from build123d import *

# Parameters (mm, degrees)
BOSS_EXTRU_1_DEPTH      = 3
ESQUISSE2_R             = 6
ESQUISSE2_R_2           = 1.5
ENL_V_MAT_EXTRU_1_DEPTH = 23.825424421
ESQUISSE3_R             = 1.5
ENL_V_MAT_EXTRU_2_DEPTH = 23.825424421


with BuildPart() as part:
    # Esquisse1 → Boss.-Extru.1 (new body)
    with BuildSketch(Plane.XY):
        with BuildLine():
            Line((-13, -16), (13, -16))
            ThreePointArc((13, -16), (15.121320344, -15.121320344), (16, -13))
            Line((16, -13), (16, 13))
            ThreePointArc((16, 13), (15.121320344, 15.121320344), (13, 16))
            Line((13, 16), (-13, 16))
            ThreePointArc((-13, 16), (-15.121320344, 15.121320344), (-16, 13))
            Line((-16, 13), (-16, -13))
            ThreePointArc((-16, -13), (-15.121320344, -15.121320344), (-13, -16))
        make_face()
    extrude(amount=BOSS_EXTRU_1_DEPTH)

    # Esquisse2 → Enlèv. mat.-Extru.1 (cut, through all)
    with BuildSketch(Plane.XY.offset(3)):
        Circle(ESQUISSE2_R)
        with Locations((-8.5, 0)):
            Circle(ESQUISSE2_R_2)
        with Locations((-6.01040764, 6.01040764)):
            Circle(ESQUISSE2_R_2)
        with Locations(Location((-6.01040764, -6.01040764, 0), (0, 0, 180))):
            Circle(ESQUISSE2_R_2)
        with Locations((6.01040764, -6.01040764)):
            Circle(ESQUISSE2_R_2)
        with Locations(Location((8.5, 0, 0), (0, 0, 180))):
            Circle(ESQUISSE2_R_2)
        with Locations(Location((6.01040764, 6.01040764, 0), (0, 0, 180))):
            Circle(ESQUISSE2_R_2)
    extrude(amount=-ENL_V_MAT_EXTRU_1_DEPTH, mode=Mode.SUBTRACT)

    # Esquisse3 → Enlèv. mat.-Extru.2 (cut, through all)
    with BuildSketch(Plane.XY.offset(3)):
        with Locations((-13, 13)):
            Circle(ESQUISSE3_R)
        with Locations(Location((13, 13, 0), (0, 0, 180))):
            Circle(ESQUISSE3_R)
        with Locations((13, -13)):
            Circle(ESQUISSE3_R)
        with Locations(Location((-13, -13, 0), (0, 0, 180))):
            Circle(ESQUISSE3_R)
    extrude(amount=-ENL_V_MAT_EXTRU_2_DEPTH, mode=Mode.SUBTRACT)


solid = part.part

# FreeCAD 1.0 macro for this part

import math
import FreeCAD as App
import Part
import Sketcher

doc = App.newDocument("Part")
body = doc.addObject("PartDesign::Body", "Body")

# Sketch on XY plane
sketch1 = doc.addObject("Sketcher::SketchObject", "Sketch")
body.addObject(sketch1)
sketch1.AttachmentSupport = (doc.XY_Plane, [""])
sketch1.MapMode = "FlatFace"
sketch1.addGeometry([
    Part.LineSegment(App.Vector(-13, -16, 0), App.Vector(13, -16, 0)),  # 0
    Part.ArcOfCircle(Part.Circle(App.Vector(13, -13, 0), App.Vector(0, 0, 1), 3), math.radians(-90), math.radians(0)),  # 1
    Part.LineSegment(App.Vector(16, -13, 0), App.Vector(16, 13, 0)),  # 2
    Part.ArcOfCircle(Part.Circle(App.Vector(13, 13, 0), App.Vector(0, 0, 1), 3), math.radians(0), math.radians(90)),  # 3
    Part.LineSegment(App.Vector(13, 16, 0), App.Vector(-13, 16, 0)),  # 4
    Part.ArcOfCircle(Part.Circle(App.Vector(-13, 13, 0), App.Vector(0, 0, 1), 3), math.radians(90), math.radians(180)),  # 5
    Part.LineSegment(App.Vector(-16, 13, 0), App.Vector(-16, -13, 0)),  # 6
    Part.ArcOfCircle(Part.Circle(App.Vector(-13, -13, 0), App.Vector(0, 0, 1), 3), math.radians(180), math.radians(270)),  # 7
], False)
sketch1.addConstraint([
    Sketcher.Constraint("Tangent", 0, 2, 1, 1),
    Sketcher.Constraint("Tangent", 1, 2, 2, 1),
    Sketcher.Constraint("Tangent", 2, 2, 3, 1),
    Sketcher.Constraint("Tangent", 3, 2, 4, 1),
    Sketcher.Constraint("Tangent", 4, 2, 5, 1),
    Sketcher.Constraint("Tangent", 5, 2, 6, 1),
    Sketcher.Constraint("Tangent", 6, 2, 7, 1),
    Sketcher.Constraint("Tangent", 7, 2, 0, 1),
    Sketcher.Constraint("Horizontal", 0),
    Sketcher.Constraint("Vertical", 2),
    Sketcher.Constraint("Horizontal", 4),
    Sketcher.Constraint("Vertical", 6),
    Sketcher.Constraint("Equal", 1, 3),
    Sketcher.Constraint("Equal", 3, 5),
    Sketcher.Constraint("Equal", 5, 7),
    Sketcher.Constraint("Symmetric", 1, 3, 5, 3, -1, 1),
    Sketcher.Constraint("Equal", 4, 2),
    Sketcher.Constraint("Radius", 1, 3.0),
    Sketcher.Constraint("DistanceX", 0, 1, 0, 2, 26.0),
])
pad1 = doc.addObject("PartDesign::Pad", "Pad")
body.addObject(pad1)
pad1.Profile = sketch1
pad1.Length = 3

# Sketch on XY plane
sketch2 = doc.addObject("Sketcher::SketchObject", "Sketch001")
body.addObject(sketch2)
sketch2.AttachmentSupport = (doc.XY_Plane, [""])
sketch2.MapMode = "FlatFace"
sketch2.AttachmentOffset = App.Placement(App.Vector(0, 0, 3), App.Rotation())
sketch2.addGeometry([
    Part.Circle(App.Vector(0, 0, 0), App.Vector(0, 0, 1), 6),  # 0
    Part.Circle(App.Vector(-8.5, 0, 0), App.Vector(0, 0, 1), 1.5),  # 1
    Part.Circle(App.Vector(-6, 6, 0), App.Vector(0, 0, 1), 1.5),  # 2
    Part.Circle(App.Vector(-6, -6, 0), App.Vector(0, 0, 1), 1.5),  # 3
    Part.Circle(App.Vector(6, -6, 0), App.Vector(0, 0, 1), 1.5),  # 4
    Part.Circle(App.Vector(8.5, 0, 0), App.Vector(0, 0, 1), 1.5),  # 5
    Part.Circle(App.Vector(6, 6, 0), App.Vector(0, 0, 1), 1.5),  # 6
], False)
sketch2.addConstraint([
    Sketcher.Constraint("Coincident", 0, 3, -1, 1),
    Sketcher.Constraint("Equal", 1, 2),
    Sketcher.Constraint("Equal", 2, 3),
    Sketcher.Constraint("Equal", 3, 4),
    Sketcher.Constraint("Equal", 4, 5),
    Sketcher.Constraint("Equal", 5, 6),
    Sketcher.Constraint("Symmetric", 2, 3, 4, 3, -1, 1),
    Sketcher.Constraint("Symmetric", 1, 3, 5, 3, -1, 1),
    Sketcher.Constraint("Symmetric", 3, 3, 6, 3, -1, 1),
    Sketcher.Constraint("Symmetric", 3, 3, 4, 3, -2),
    Sketcher.Constraint("PointOnObject", 1, 3, -1),
    Sketcher.Constraint("Diameter", 0, 12.0),
    Sketcher.Constraint("Diameter", 1, 3.0),
    Sketcher.Constraint("DistanceX", 1, 3, 5, 3, 17.0),
    Sketcher.Constraint("DistanceX", 2, 3, -1, 1, 6.010408),
    Sketcher.Constraint("DistanceY", -1, 1, 2, 3, 6.010408),
])
pocket1 = doc.addObject("PartDesign::Pocket", "Pocket")
body.addObject(pocket1)
pocket1.Profile = sketch2
pocket1.Type = "ThroughAll"

# Sketch on XY plane
sketch3 = doc.addObject("Sketcher::SketchObject", "Sketch002")
body.addObject(sketch3)
sketch3.AttachmentSupport = (doc.XY_Plane, [""])
sketch3.MapMode = "FlatFace"
sketch3.AttachmentOffset = App.Placement(App.Vector(0, 0, 3), App.Rotation())
sketch3.addGeometry([
    Part.Circle(App.Vector(-13, 13, 0), App.Vector(0, 0, 1), 1.5),
    Part.Circle(App.Vector(13, 13, 0), App.Vector(0, 0, 1), 1.5),
    Part.Circle(App.Vector(13, -13, 0), App.Vector(0, 0, 1), 1.5),
    Part.Circle(App.Vector(-13, -13, 0), App.Vector(0, 0, 1), 1.5),
], False)
sketch3.addConstraint([
    Sketcher.Constraint("Equal", 0, 1),
    Sketcher.Constraint("Equal", 1, 2),
    Sketcher.Constraint("Equal", 2, 3),
    Sketcher.Constraint("Symmetric", 0, 3, 2, 3, -1, 1),
    Sketcher.Constraint("Symmetric", 1, 3, 3, 3, -1, 1),
    Sketcher.Constraint("Symmetric", 0, 3, 1, 3, -2),
    Sketcher.Constraint("Diameter", 0, 3.0),
    Sketcher.Constraint("DistanceX", 0, 3, -1, 1, 13.0),
    Sketcher.Constraint("DistanceY", -1, 1, 0, 3, 13.0),
])
pocket2 = doc.addObject("PartDesign::Pocket", "Pocket001")
body.addObject(pocket2)
pocket2.Profile = sketch3
pocket2.Type = "ThroughAll"

doc.recompute()
